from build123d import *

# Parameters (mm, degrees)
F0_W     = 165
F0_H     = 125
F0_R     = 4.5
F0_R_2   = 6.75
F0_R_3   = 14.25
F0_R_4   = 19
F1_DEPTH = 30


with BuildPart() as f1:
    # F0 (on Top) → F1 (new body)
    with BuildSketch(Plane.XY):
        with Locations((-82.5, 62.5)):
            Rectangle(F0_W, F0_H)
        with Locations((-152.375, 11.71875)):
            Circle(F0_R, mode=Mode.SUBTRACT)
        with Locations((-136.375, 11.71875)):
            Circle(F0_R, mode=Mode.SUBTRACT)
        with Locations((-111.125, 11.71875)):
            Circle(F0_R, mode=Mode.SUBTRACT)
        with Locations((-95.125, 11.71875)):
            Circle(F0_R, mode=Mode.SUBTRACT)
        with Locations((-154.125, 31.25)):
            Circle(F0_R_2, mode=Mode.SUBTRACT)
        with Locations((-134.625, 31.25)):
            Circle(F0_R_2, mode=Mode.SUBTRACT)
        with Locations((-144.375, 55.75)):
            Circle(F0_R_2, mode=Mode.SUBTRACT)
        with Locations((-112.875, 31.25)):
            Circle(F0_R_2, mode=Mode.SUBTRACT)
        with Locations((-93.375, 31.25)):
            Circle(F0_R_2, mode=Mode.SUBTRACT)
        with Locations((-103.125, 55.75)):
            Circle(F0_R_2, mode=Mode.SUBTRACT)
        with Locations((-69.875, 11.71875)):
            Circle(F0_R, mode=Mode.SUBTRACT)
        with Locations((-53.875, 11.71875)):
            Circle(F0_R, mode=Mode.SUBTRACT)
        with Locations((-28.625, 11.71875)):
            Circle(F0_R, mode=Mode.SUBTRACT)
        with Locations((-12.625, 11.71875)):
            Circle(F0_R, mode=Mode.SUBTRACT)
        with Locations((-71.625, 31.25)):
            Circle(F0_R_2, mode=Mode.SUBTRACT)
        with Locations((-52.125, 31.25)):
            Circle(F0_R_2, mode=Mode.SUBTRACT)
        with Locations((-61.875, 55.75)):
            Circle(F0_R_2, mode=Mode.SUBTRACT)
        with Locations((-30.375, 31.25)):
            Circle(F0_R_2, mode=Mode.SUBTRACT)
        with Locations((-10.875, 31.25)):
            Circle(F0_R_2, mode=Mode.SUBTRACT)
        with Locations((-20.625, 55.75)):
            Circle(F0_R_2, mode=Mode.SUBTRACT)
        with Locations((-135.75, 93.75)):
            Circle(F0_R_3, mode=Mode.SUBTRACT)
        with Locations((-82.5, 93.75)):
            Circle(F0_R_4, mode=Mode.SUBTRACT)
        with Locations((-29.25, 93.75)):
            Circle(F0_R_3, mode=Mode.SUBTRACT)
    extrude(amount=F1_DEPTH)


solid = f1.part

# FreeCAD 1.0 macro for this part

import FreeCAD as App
import Part
import Sketcher
Q = App.Units.Quantity


def add_polygon(sketch, points):
    """Adds a closed chain of lines whose ends are joined by coincident constraints."""
    first, n = sketch.GeometryCount, len(points)
    for a, b in zip(points, points[1:] + points[:1]):
        sketch.addGeometry(Part.LineSegment(App.Vector(*a, 0), App.Vector(*b, 0)), False)
    for i in range(n):
        sketch.addConstraint(Sketcher.Constraint("Coincident", first + i, 2, first + (i + 1) % n, 1))

doc = App.newDocument("Part")
body = doc.addObject("PartDesign::Body", "Body")

# Sketch on XY plane
sketch1 = doc.addObject("Sketcher::SketchObject", "Sketch")
body.addObject(sketch1)
sketch1.AttachmentSupport = (doc.XY_Plane, [""])
sketch1.MapMode = "FlatFace"
add_polygon(sketch1, [(-165, 125), (-165, 0), (0, 0), (0, 125)])  # lines 0-3
sketch1.addGeometry(Part.Circle(App.Vector(-152.375, 11.71875, 0), App.Vector(0, 0, 1), 4.5), False)  # 4
sketch1.addGeometry(Part.Circle(App.Vector(-136.375, 11.71875, 0), App.Vector(0, 0, 1), 4.5), False)  # 5
sketch1.addGeometry(Part.Circle(App.Vector(-154.125, 31.25, 0), App.Vector(0, 0, 1), 6.75), False)  # 6
sketch1.addGeometry(Part.Circle(App.Vector(-134.625, 31.25, 0), App.Vector(0, 0, 1), 6.75), False)  # 7
sketch1.addGeometry(Part.Circle(App.Vector(-111.125, 11.71875, 0), App.Vector(0, 0, 1), 4.5), False)  # 8
sketch1.addGeometry(Part.Circle(App.Vector(-95.125, 11.71875, 0), App.Vector(0, 0, 1), 4.5), False)  # 9
sketch1.addGeometry(Part.Circle(App.Vector(-112.875, 31.25, 0), App.Vector(0, 0, 1), 6.75), False)  # 10
sketch1.addGeometry(Part.Circle(App.Vector(-93.375, 31.25, 0), App.Vector(0, 0, 1), 6.75), False)  # 11
sketch1.addGeometry(Part.Circle(App.Vector(-144.375, 55.75, 0), App.Vector(0, 0, 1), 6.75), False)  # 12
sketch1.addGeometry(Part.Circle(App.Vector(-103.125, 55.75, 0), App.Vector(0, 0, 1), 6.75), False)  # 13
sketch1.addGeometry(Part.Circle(App.Vector(-69.875, 11.71875, 0), App.Vector(0, 0, 1), 4.5), False)  # 14
sketch1.addGeometry(Part.Circle(App.Vector(-53.875, 11.71875, 0), App.Vector(0, 0, 1), 4.5), False)  # 15
sketch1.addGeometry(Part.Circle(App.Vector(-71.625, 31.25, 0), App.Vector(0, 0, 1), 6.75), False)  # 16
sketch1.addGeometry(Part.Circle(App.Vector(-52.125, 31.25, 0), App.Vector(0, 0, 1), 6.75), False)  # 17
sketch1.addGeometry(Part.Circle(App.Vector(-28.625, 11.71875, 0), App.Vector(0, 0, 1), 4.5), False)  # 18
sketch1.addGeometry(Part.Circle(App.Vector(-12.625, 11.71875, 0), App.Vector(0, 0, 1), 4.5), False)  # 19
sketch1.addGeometry(Part.Circle(App.Vector(-30.375, 31.25, 0), App.Vector(0, 0, 1), 6.75), False)  # 20
sketch1.addGeometry(Part.Circle(App.Vector(-10.875, 31.25, 0), App.Vector(0, 0, 1), 6.75), False)  # 21
sketch1.addGeometry(Part.Circle(App.Vector(-61.875, 55.75, 0), App.Vector(0, 0, 1), 6.75), False)  # 22
sketch1.addGeometry(Part.Circle(App.Vector(-20.625, 55.75, 0), App.Vector(0, 0, 1), 6.75), False)  # 23
sketch1.addGeometry(Part.Circle(App.Vector(-135.75, 93.75, 0), App.Vector(0, 0, 1), 14.25), False)  # 24
sketch1.addGeometry(Part.Circle(App.Vector(-82.5, 93.75, 0), App.Vector(0, 0, 1), 19), False)  # 25
sketch1.addGeometry(Part.Circle(App.Vector(-29.25, 93.75, 0), App.Vector(0, 0, 1), 14.25), False)  # 26
sketch1.addConstraint(Sketcher.Constraint("Vertical", 0))
sketch1.addConstraint(Sketcher.Constraint("Horizontal", 1))
sketch1.addConstraint(Sketcher.Constraint("Vertical", 2))
sketch1.addConstraint(Sketcher.Constraint("Horizontal", 3))
sketch1.addConstraint(Sketcher.Constraint("Coincident", 1, 2, -1, 1))
sketch1.addConstraint(Sketcher.Constraint("Equal", 4, 5))
sketch1.addConstraint(Sketcher.Constraint("Equal", 6, 7))
sketch1.addConstraint(Sketcher.Constraint("Equal", 5, 8))
sketch1.addConstraint(Sketcher.Constraint("Equal", 8, 9))
sketch1.addConstraint(Sketcher.Constraint("Equal", 7, 10))
sketch1.addConstraint(Sketcher.Constraint("Equal", 10, 11))
sketch1.addConstraint(Sketcher.Constraint("Equal", 11, 12))
sketch1.addConstraint(Sketcher.Constraint("Equal", 12, 13))
sketch1.addConstraint(Sketcher.Constraint("Equal", 9, 14))
sketch1.addConstraint(Sketcher.Constraint("Equal", 14, 15))
sketch1.addConstraint(Sketcher.Constraint("Equal", 13, 16))
sketch1.addConstraint(Sketcher.Constraint("Equal", 16, 17))
sketch1.addConstraint(Sketcher.Constraint("Equal", 15, 18))
sketch1.addConstraint(Sketcher.Constraint("Equal", 18, 19))
sketch1.addConstraint(Sketcher.Constraint("Equal", 17, 20))
sketch1.addConstraint(Sketcher.Constraint("Equal", 20, 21))
sketch1.addConstraint(Sketcher.Constraint("Equal", 21, 22))
sketch1.addConstraint(Sketcher.Constraint("Equal", 22, 23))
sketch1.addConstraint(Sketcher.Constraint("Equal", 24, 26))
sketch1.addConstraint(Sketcher.Constraint("Horizontal", 4, 3, 5, 3))
sketch1.addConstraint(Sketcher.Constraint("Horizontal", 6, 3, 7, 3))
sketch1.addConstraint(Sketcher.Constraint("Horizontal", 5, 3, 8, 3))
sketch1.addConstraint(Sketcher.Constraint("Horizontal", 8, 3, 9, 3))
sketch1.addConstraint(Sketcher.Constraint("Horizontal", 7, 3, 10, 3))
sketch1.addConstraint(Sketcher.Constraint("Horizontal", 10, 3, 11, 3))
sketch1.addConstraint(Sketcher.Constraint("Horizontal", 12, 3, 13, 3))
sketch1.addConstraint(Sketcher.Constraint("Horizontal", 9, 3, 14, 3))
sketch1.addConstraint(Sketcher.Constraint("Horizontal", 14, 3, 15, 3))
sketch1.addConstraint(Sketcher.Constraint("Horizontal", 11, 3, 16, 3))
sketch1.addConstraint(Sketcher.Constraint("Horizontal", 16, 3, 17, 3))
sketch1.addConstraint(Sketcher.Constraint("Horizontal", 15, 3, 18, 3))
sketch1.addConstraint(Sketcher.Constraint("Horizontal", 18, 3, 19, 3))
sketch1.addConstraint(Sketcher.Constraint("Horizontal", 17, 3, 20, 3))
sketch1.addConstraint(Sketcher.Constraint("Horizontal", 20, 3, 21, 3))
sketch1.addConstraint(Sketcher.Constraint("Horizontal", 13, 3, 22, 3))
sketch1.addConstraint(Sketcher.Constraint("Horizontal", 22, 3, 23, 3))
sketch1.addConstraint(Sketcher.Constraint("Horizontal", 24, 3, 25, 3))
sketch1.addConstraint(Sketcher.Constraint("Horizontal", 25, 3, 26, 3))
sketch1.addConstraint(Sketcher.Constraint("Diameter", 4, Q("9 mm")))
sketch1.addConstraint(Sketcher.Constraint("Diameter", 25, Q("38 mm")))
sketch1.addConstraint(Sketcher.Constraint("Diameter", 6, Q("13.5 mm")))
sketch1.addConstraint(Sketcher.Constraint("Diameter", 24, Q("28.5 mm")))
sketch1.addConstraint(Sketcher.Constraint("DistanceX", 1, 1, 1, 2, Q("165 mm")))
sketch1.addConstraint(Sketcher.Constraint("DistanceY", 0, 2, 0, 1, Q("125 mm")))
sketch1.addConstraint(Sketcher.Constraint("DistanceX", 4, 3, 5, 3, Q("16 mm")))
sketch1.addConstraint(Sketcher.Constraint("DistanceX", 6, 3, 8, 3, Q("43 mm")))
sketch1.addConstraint(Sketcher.Constraint("DistanceX", 8, 3, 9, 3, Q("16 mm")))
sketch1.addConstraint(Sketcher.Constraint("DistanceX", 5, 3, 11, 3, Q("43 mm")))
sketch1.addConstraint(Sketcher.Constraint("DistanceX", 4, 3, 12, 3, Q("8 mm")))
sketch1.addConstraint(Sketcher.Constraint("DistanceX", 8, 3, 13, 3, Q("8 mm")))
sketch1.addConstraint(Sketcher.Constraint("DistanceX", 10, 3, 14, 3, Q("43 mm")))
sketch1.addConstraint(Sketcher.Constraint("DistanceX", 14, 3, 15, 3, Q("16 mm")))
sketch1.addConstraint(Sketcher.Constraint("DistanceX", 9, 3, 17, 3, Q("43 mm")))
sketch1.addConstraint(Sketcher.Constraint("DistanceX", 16, 3, 18, 3, Q("43 mm")))
sketch1.addConstraint(Sketcher.Constraint("DistanceX", 18, 3, 19, 3, Q("16 mm")))
sketch1.addConstraint(Sketcher.Constraint("DistanceX", 15, 3, 21, 3, Q("43 mm")))
sketch1.addConstraint(Sketcher.Constraint("DistanceX", 18, 3, 23, 3, Q("8 mm")))
sketch1.addConstraint(Sketcher.Constraint("DistanceY", 12, 3, 24, 3, Q("38 mm")))
sketch1.addConstraint(Sketcher.Constraint("DistanceX", 25, 3, -1, 1, Q("82.5 mm")))
sketch1.addConstraint(Sketcher.Constraint("DistanceX", 6, 3, 7, 3, Q("19.5 mm")))
sketch1.addConstraint(Sketcher.Constraint("DistanceX", 5, 3, 10, 3, Q("23.5 mm")))
sketch1.addConstraint(Sketcher.Constraint("DistanceY", 6, 3, 12, 3, Q("24.5 mm")))
sketch1.addConstraint(Sketcher.Constraint("DistanceX", 9, 3, 16, 3, Q("23.5 mm")))
sketch1.addConstraint(Sketcher.Constraint("DistanceX", 15, 3, 20, 3, Q("23.5 mm")))
sketch1.addConstraint(Sketcher.Constraint("DistanceX", 11, 3, 22, 3, Q("31.5 mm")))
sketch1.addConstraint(Sketcher.Constraint("DistanceY", -1, 1, 6, 3, Q("31.25 mm")))
sketch1.addConstraint(Sketcher.Constraint("DistanceX", 24, 3, -1, 1, Q("135.75 mm")))
sketch1.addConstraint(Sketcher.Constraint("DistanceX", 26, 3, -1, 1, Q("29.25 mm")))
sketch1.addConstraint(Sketcher.Constraint("DistanceX", 6, 3, 4, 3, Q("1.75 mm")))
sketch1.addConstraint(Sketcher.Constraint("DistanceX", 4, 3, -1, 1, Q("152.375 mm")))
sketch1.addConstraint(Sketcher.Constraint("DistanceY", -1, 1, 4, 3, Q("11.71875 mm")))
pad1 = doc.addObject("PartDesign::Pad", "Pad")
body.addObject(pad1)
pad1.Profile = sketch1
pad1.Length = 30

doc.recompute()
